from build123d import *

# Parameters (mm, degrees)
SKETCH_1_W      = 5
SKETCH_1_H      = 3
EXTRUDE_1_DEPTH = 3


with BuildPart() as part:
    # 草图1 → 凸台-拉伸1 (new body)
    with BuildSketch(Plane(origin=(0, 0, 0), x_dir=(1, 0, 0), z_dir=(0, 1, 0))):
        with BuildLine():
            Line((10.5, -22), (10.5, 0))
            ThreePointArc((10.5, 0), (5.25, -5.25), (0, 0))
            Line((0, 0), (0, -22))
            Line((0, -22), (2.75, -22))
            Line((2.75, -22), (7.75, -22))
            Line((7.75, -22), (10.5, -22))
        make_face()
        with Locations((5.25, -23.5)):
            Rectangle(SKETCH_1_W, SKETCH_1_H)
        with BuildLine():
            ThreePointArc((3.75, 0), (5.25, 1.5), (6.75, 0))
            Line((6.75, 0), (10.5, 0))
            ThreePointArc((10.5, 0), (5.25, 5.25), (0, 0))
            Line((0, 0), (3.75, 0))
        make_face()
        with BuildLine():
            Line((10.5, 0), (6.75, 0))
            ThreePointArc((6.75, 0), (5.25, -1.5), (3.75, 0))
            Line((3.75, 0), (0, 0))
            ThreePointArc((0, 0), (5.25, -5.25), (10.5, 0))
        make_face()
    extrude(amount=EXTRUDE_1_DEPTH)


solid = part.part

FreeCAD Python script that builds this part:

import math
import FreeCAD as App
import Part
import Sketcher

V = App.Vector
Q = App.Units.Quantity

doc = App.newDocument("Part")
body = doc.addObject("PartDesign::Body", "Body")

sketch1 = body.newObject("Sketcher::SketchObject", "Sketch")
sketch1.AttachmentSupport = (doc.getObject("XZ_Plane"), [""])
sketch1.MapMode = "FlatFace"
sketch1.addGeometry([
    Part.LineSegment(V(7.8, 25, 0), V(7.8, 22, 0)),
    Part.LineSegment(V(7.8, 22, 0), V(10.5, 22, 0)),
    Part.LineSegment(V(10.5, 22, 0), V(10.5, 0, 0)),
    Part.ArcOfCircle(Part.Circle(V(5.2, 0, 0), V(0, 0, 1), 5.2), math.radians(180), math.radians(360)),
    Part.LineSegment(V(0, 0, 0), V(0, 22, 0)),
    Part.LineSegment(V(0, 22, 0), V(2.8, 22, 0)),
    Part.LineSegment(V(2.8, 22, 0), V(2.8, 25, 0)),
    Part.LineSegment(V(2.8, 25, 0), V(7.8, 25, 0)),
    Part.Circle(V(5.2, 0, 0), V(0, 0, 1), 1.5),
], False)
sketch1.addConstraint([
    Sketcher.Constraint("Coincident", 0, 2, 1, 1),
    Sketcher.Constraint("Coincident", 1, 2, 2, 1),
    Sketcher.Constraint("Tangent", 2, 2, 3, 2),
    Sketcher.Constraint("Tangent", 3, 1, 4, 1),
    Sketcher.Constraint("Coincident", 4, 2, 5, 1),
    Sketcher.Constraint("Coincident", 5, 2, 6, 1),
    Sketcher.Constraint("Coincident", 6, 2, 7, 1),
    Sketcher.Constraint("Coincident", 7, 2, 0, 1),
    Sketcher.Constraint("Vertical", 0),
    Sketcher.Constraint("Horizontal", 1),
    Sketcher.Constraint("Vertical", 2),
    Sketcher.Constraint("Vertical", 4),
    Sketcher.Constraint("Horizontal", 5),
    Sketcher.Constraint("Vertical", 6),
    Sketcher.Constraint("Horizontal", 7),
    Sketcher.Constraint("Coincident", 3, 1, -1, 1),
    Sketcher.Constraint("Coincident", 8, 3, 3, 3),
    Sketcher.Constraint("Horizontal", 1, 2, 4, 2),
    Sketcher.Constraint("Equal", 1, 5),
    Sketcher.Constraint("Diameter", 8, Q("3 mm")),
    Sketcher.Constraint("DistanceX", 7, 1, 7, 2, Q("5 mm")),
    Sketcher.Constraint("DistanceY", 0, 2, 0, 1, Q("3 mm")),
    Sketcher.Constraint("DistanceY", 2, 2, 2, 1, Q("22 mm")),
    Sketcher.Constraint("Radius", 3, Q("5.25 mm")),
])
pad1 = body.newObject("PartDesign::Pad", "Pad")
pad1.Profile = sketch1
pad1.Length = 3
pad1.Reversed = True

doc.recompute()
